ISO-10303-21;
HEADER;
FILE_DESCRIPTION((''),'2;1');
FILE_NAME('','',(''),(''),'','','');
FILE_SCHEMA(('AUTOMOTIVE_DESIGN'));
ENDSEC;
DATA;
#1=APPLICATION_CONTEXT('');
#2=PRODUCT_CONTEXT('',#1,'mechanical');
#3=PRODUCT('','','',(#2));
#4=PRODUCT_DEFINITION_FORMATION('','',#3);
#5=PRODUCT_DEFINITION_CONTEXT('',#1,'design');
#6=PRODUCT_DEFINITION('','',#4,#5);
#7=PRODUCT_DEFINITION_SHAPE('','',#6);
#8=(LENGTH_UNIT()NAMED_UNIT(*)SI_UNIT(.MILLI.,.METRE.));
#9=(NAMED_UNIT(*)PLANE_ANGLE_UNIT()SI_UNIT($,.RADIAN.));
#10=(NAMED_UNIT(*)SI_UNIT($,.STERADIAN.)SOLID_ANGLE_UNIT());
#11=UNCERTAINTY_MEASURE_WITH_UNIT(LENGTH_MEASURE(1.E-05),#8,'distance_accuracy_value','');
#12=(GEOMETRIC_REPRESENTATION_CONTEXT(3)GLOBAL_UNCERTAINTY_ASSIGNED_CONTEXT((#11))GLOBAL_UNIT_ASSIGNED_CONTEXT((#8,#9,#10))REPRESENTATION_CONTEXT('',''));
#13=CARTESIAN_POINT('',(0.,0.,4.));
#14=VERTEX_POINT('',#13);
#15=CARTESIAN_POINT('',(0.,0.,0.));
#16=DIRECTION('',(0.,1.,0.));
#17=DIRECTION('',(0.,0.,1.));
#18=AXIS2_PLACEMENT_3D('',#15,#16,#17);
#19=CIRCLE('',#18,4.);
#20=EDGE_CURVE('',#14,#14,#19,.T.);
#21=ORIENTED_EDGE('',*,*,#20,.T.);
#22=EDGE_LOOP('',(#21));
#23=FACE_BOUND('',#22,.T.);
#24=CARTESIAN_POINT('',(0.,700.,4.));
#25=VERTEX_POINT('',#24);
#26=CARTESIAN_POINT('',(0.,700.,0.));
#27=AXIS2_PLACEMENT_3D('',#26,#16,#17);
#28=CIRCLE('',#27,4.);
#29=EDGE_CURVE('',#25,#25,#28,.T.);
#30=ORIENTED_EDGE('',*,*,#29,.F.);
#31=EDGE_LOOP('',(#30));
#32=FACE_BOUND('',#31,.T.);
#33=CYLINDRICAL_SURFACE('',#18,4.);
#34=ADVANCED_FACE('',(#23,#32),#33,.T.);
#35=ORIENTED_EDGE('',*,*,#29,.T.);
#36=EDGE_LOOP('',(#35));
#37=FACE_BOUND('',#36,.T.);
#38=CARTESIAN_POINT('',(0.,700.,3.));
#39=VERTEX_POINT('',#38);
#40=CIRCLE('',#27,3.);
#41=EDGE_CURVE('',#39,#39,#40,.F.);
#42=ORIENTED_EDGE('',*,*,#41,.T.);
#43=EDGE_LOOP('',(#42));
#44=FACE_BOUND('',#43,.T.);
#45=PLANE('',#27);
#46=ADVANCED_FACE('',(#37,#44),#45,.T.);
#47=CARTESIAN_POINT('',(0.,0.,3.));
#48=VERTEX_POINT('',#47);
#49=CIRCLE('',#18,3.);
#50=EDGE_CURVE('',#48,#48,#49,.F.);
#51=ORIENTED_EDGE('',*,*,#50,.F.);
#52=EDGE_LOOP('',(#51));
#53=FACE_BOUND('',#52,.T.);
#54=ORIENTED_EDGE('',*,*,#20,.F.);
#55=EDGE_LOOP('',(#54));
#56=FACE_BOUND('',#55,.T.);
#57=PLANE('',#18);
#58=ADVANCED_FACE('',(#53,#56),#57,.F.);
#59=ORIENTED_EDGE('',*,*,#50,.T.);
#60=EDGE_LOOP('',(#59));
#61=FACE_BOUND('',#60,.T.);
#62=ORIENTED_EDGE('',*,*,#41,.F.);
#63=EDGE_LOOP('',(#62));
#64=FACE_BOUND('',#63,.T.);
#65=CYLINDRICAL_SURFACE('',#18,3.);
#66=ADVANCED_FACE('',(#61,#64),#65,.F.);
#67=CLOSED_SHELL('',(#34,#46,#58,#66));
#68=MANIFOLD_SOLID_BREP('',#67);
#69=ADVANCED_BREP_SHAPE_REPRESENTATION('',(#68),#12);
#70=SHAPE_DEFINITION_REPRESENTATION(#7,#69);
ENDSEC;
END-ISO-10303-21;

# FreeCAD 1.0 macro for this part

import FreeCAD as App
import Part
import Sketcher

V = App.Vector

doc = App.newDocument("Part")
body = doc.addObject("PartDesign::Body", "Body")

sketch1 = doc.addObject("Sketcher::SketchObject", "Sketch")
body.addObject(sketch1)
sketch1.AttachmentSupport = (doc.XZ_Plane, [""])
sketch1.MapMode = "FlatFace"
sketch1.addGeometry([
    Part.Circle(V(0, 0, 0), V(0, 0, 1), 4),
    Part.Circle(V(0, 0, 0), V(0, 0, 1), 3),
], False)
sketch1.addConstraint([
    Sketcher.Constraint("Coincident", 0, 3, -1, 1),
    Sketcher.Constraint("Coincident", 1, 3, -1, 1),
    Sketcher.Constraint("Diameter", 0, 8.0),
    Sketcher.Constraint("Diameter", 1, 6.0),
])

sketch2 = doc.addObject("Sketcher::SketchObject", "Sketch001")
body.addObject(sketch2)
sketch2.AttachmentSupport = (doc.XY_Plane, [""])
sketch2.MapMode = "FlatFace"
sketch2.addGeometry(Part.LineSegment(V(0, 0, 0), V(0, 700, 0)), False)
sketch2.addConstraint([
    Sketcher.Constraint("Vertical", 0),
    Sketcher.Constraint("Coincident", 0, 1, -1, 1),
    Sketcher.Constraint("DistanceY", 0, 1, 0, 2, 700.0),
])
doc.recompute()

additivepipe = doc.addObject("PartDesign::AdditivePipe", "AdditivePipe")
body.addObject(additivepipe)
additivepipe.Profile = sketch1
additivepipe.Spine = (sketch2, ["Edge1"])

doc.recompute()
